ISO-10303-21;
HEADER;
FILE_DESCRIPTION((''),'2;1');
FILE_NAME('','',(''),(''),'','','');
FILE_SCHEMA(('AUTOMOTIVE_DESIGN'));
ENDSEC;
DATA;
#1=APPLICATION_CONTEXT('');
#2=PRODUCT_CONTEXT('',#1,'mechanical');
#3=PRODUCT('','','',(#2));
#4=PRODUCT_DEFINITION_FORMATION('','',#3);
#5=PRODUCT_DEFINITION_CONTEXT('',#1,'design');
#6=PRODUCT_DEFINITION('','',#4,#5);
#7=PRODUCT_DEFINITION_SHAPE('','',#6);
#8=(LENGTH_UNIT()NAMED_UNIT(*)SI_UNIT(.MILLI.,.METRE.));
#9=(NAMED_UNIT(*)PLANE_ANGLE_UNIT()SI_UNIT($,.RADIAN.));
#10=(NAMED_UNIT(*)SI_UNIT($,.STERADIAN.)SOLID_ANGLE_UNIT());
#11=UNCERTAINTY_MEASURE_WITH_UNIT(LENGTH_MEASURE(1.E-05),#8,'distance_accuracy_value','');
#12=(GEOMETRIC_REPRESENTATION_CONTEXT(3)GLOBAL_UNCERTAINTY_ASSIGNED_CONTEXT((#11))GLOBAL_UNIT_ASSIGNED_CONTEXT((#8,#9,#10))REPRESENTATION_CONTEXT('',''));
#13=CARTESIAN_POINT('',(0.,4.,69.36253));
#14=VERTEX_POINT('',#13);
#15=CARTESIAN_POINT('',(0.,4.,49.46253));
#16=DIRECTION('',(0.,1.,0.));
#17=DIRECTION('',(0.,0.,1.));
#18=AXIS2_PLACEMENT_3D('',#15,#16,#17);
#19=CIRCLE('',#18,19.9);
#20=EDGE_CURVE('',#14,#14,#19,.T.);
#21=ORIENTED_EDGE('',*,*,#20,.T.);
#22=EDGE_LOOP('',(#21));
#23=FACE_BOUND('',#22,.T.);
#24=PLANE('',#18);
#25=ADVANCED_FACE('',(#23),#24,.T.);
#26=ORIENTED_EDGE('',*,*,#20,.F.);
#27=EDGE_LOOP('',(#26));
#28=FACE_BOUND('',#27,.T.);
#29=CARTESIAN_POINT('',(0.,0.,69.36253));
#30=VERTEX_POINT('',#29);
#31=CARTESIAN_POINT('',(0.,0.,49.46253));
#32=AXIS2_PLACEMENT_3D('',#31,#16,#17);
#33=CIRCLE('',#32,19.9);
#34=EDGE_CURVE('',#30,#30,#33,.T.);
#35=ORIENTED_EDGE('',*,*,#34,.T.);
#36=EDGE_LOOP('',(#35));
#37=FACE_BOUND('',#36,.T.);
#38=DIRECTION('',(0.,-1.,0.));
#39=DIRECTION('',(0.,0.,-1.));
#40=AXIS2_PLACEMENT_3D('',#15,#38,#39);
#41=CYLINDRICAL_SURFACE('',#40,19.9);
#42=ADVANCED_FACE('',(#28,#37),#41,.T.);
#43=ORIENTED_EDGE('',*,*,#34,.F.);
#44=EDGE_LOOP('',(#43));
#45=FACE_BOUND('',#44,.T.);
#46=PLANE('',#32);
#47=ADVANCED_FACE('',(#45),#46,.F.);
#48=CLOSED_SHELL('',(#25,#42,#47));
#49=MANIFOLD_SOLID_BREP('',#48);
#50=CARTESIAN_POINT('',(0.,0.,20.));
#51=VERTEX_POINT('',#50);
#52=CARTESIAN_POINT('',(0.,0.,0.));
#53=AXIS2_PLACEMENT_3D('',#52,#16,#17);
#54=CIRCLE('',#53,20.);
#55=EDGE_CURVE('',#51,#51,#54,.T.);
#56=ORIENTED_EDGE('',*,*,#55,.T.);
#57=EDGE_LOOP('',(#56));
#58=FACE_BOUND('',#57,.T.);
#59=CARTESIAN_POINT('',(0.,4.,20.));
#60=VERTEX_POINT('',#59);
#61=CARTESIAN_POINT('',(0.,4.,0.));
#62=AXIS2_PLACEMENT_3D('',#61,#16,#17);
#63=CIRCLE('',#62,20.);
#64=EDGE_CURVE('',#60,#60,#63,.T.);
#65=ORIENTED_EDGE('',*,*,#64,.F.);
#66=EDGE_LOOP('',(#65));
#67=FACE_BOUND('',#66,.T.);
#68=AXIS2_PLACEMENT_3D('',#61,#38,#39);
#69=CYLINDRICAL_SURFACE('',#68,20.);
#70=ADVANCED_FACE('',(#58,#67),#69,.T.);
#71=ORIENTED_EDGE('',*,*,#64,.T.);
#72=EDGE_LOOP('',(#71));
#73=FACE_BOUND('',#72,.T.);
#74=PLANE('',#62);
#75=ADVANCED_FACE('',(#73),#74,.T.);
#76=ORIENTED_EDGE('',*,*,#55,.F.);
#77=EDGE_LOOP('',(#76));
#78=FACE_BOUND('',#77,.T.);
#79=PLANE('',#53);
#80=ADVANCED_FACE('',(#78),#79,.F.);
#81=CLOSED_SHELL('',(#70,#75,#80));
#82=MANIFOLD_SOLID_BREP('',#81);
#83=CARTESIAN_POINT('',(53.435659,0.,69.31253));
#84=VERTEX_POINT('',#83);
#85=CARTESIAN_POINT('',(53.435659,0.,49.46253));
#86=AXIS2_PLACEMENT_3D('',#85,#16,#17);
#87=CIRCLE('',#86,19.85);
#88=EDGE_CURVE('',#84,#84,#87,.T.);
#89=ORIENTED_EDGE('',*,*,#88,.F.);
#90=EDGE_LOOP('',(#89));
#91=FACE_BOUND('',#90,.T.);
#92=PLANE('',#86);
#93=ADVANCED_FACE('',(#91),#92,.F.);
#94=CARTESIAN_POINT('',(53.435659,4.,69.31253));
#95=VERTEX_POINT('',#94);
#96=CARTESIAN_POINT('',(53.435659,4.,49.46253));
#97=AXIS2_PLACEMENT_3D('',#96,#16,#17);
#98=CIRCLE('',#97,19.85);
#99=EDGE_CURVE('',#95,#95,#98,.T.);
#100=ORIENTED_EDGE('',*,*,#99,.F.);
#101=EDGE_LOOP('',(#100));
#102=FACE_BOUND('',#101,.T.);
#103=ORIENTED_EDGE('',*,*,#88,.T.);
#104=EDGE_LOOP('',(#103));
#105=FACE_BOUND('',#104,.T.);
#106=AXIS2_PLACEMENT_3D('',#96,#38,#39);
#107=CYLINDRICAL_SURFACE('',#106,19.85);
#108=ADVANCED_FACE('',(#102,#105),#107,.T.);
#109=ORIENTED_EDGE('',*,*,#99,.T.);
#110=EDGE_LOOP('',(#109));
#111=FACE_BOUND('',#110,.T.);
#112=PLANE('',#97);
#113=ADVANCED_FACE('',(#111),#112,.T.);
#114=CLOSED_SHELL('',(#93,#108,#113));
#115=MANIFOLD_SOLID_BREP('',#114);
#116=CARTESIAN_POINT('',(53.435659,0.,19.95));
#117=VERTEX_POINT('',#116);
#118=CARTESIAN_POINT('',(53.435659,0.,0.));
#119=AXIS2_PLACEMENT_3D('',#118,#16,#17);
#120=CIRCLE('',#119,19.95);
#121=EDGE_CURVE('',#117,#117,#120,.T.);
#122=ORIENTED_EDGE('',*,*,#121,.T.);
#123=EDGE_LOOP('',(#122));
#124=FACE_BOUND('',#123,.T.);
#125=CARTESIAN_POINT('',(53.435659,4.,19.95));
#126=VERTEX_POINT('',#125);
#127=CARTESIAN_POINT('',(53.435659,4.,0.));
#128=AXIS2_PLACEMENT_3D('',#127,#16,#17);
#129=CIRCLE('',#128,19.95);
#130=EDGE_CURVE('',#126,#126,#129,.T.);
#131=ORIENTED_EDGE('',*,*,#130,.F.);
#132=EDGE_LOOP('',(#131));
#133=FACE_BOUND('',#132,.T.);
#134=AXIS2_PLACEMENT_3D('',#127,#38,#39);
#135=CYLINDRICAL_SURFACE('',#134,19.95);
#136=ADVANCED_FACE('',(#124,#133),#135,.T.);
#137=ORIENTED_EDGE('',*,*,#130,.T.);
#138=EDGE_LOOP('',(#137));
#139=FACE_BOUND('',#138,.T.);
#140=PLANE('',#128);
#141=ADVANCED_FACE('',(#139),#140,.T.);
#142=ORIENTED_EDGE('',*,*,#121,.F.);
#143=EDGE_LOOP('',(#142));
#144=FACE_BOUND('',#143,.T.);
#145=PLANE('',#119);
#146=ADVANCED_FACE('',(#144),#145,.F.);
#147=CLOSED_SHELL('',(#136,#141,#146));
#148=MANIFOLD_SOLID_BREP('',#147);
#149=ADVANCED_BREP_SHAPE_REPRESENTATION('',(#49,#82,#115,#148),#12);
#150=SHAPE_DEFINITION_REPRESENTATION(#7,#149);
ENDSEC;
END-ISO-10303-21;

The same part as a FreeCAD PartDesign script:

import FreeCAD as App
import Part
import Sketcher
Q = App.Units.Quantity

doc = App.newDocument("Part")
body = doc.addObject("PartDesign::Body", "Body")

sketch1 = doc.addObject("Sketcher::SketchObject", "Sketch")
body.addObject(sketch1)
sketch1.AttachmentSupport = (doc.XZ_Plane, [""])
sketch1.MapMode = "FlatFace"
sketch1.addGeometry(Part.Circle(App.Vector(0, 0, 0), App.Vector(0, 0, 1), 20), False)
sketch1.addConstraint(Sketcher.Constraint("Coincident", 0, 3, -1, 1))
sketch1.addConstraint(Sketcher.Constraint("Diameter", 0, Q("40 mm")))
pad1 = doc.addObject("PartDesign::Pad", "Pad")
body.addObject(pad1)
pad1.Profile = sketch1
pad1.Length = 4
pad1.Reversed = True
body2 = doc.addObject("PartDesign::Body", "Body001")

sketch2 = doc.addObject("Sketcher::SketchObject", "Sketch001")
body2.addObject(sketch2)
sketch2.AttachmentSupport = (doc.getObject("XZ_Plane001"), [""])
sketch2.MapMode = "FlatFace"
sketch2.addGeometry(Part.Circle(App.Vector(53, 0, 0), App.Vector(0, 0, 1), 20), False)
sketch2.addConstraint(Sketcher.Constraint("PointOnObject", 0, 3, -1))
sketch2.addConstraint(Sketcher.Constraint("Diameter", 0, Q("39.9 mm")))
sketch2.addConstraint(Sketcher.Constraint("DistanceX", -1, 1, 0, 3, Q("53.435659 mm")))
pad2 = doc.addObject("PartDesign::Pad", "Pad001")
body2.addObject(pad2)
pad2.Profile = sketch2
pad2.Length = 4
pad2.Reversed = True
body3 = doc.addObject("PartDesign::Body", "Body002")

sketch3 = doc.addObject("Sketcher::SketchObject", "Sketch002")
body3.addObject(sketch3)
sketch3.AttachmentSupport = (doc.getObject("XZ_Plane002"), [""])
sketch3.MapMode = "FlatFace"
sketch3.addGeometry(Part.Circle(App.Vector(53, 49, 0), App.Vector(0, 0, 1), 20), False)
sketch3.addConstraint(Sketcher.Constraint("Diameter", 0, Q("39.7 mm")))
sketch3.addConstraint(Sketcher.Constraint("DistanceX", -1, 1, 0, 3, Q("53.435659 mm")))
sketch3.addConstraint(Sketcher.Constraint("DistanceY", -1, 1, 0, 3, Q("49.46253 mm")))
pad3 = doc.addObject("PartDesign::Pad", "Pad002")
body3.addObject(pad3)
pad3.Profile = sketch3
pad3.Length = 4
pad3.Reversed = True
body4 = doc.addObject("PartDesign::Body", "Body003")

sketch4 = doc.addObject("Sketcher::SketchObject", "Sketch003")
body4.addObject(sketch4)
sketch4.AttachmentSupport = (doc.getObject("XZ_Plane003"), [""])
sketch4.MapMode = "FlatFace"
sketch4.addGeometry(Part.Circle(App.Vector(0, 49, 0), App.Vector(0, 0, 1), 20), False)
sketch4.addConstraint(Sketcher.Constraint("PointOnObject", 0, 3, -2))
sketch4.addConstraint(Sketcher.Constraint("Diameter", 0, Q("39.8 mm")))
sketch4.addConstraint(Sketcher.Constraint("DistanceY", -1, 1, 0, 3, Q("49.46253 mm")))
pad4 = doc.addObject("PartDesign::Pad", "Pad003")
body4.addObject(pad4)
pad4.Profile = sketch4
pad4.Length = 4
pad4.Reversed = True

doc.recompute()
